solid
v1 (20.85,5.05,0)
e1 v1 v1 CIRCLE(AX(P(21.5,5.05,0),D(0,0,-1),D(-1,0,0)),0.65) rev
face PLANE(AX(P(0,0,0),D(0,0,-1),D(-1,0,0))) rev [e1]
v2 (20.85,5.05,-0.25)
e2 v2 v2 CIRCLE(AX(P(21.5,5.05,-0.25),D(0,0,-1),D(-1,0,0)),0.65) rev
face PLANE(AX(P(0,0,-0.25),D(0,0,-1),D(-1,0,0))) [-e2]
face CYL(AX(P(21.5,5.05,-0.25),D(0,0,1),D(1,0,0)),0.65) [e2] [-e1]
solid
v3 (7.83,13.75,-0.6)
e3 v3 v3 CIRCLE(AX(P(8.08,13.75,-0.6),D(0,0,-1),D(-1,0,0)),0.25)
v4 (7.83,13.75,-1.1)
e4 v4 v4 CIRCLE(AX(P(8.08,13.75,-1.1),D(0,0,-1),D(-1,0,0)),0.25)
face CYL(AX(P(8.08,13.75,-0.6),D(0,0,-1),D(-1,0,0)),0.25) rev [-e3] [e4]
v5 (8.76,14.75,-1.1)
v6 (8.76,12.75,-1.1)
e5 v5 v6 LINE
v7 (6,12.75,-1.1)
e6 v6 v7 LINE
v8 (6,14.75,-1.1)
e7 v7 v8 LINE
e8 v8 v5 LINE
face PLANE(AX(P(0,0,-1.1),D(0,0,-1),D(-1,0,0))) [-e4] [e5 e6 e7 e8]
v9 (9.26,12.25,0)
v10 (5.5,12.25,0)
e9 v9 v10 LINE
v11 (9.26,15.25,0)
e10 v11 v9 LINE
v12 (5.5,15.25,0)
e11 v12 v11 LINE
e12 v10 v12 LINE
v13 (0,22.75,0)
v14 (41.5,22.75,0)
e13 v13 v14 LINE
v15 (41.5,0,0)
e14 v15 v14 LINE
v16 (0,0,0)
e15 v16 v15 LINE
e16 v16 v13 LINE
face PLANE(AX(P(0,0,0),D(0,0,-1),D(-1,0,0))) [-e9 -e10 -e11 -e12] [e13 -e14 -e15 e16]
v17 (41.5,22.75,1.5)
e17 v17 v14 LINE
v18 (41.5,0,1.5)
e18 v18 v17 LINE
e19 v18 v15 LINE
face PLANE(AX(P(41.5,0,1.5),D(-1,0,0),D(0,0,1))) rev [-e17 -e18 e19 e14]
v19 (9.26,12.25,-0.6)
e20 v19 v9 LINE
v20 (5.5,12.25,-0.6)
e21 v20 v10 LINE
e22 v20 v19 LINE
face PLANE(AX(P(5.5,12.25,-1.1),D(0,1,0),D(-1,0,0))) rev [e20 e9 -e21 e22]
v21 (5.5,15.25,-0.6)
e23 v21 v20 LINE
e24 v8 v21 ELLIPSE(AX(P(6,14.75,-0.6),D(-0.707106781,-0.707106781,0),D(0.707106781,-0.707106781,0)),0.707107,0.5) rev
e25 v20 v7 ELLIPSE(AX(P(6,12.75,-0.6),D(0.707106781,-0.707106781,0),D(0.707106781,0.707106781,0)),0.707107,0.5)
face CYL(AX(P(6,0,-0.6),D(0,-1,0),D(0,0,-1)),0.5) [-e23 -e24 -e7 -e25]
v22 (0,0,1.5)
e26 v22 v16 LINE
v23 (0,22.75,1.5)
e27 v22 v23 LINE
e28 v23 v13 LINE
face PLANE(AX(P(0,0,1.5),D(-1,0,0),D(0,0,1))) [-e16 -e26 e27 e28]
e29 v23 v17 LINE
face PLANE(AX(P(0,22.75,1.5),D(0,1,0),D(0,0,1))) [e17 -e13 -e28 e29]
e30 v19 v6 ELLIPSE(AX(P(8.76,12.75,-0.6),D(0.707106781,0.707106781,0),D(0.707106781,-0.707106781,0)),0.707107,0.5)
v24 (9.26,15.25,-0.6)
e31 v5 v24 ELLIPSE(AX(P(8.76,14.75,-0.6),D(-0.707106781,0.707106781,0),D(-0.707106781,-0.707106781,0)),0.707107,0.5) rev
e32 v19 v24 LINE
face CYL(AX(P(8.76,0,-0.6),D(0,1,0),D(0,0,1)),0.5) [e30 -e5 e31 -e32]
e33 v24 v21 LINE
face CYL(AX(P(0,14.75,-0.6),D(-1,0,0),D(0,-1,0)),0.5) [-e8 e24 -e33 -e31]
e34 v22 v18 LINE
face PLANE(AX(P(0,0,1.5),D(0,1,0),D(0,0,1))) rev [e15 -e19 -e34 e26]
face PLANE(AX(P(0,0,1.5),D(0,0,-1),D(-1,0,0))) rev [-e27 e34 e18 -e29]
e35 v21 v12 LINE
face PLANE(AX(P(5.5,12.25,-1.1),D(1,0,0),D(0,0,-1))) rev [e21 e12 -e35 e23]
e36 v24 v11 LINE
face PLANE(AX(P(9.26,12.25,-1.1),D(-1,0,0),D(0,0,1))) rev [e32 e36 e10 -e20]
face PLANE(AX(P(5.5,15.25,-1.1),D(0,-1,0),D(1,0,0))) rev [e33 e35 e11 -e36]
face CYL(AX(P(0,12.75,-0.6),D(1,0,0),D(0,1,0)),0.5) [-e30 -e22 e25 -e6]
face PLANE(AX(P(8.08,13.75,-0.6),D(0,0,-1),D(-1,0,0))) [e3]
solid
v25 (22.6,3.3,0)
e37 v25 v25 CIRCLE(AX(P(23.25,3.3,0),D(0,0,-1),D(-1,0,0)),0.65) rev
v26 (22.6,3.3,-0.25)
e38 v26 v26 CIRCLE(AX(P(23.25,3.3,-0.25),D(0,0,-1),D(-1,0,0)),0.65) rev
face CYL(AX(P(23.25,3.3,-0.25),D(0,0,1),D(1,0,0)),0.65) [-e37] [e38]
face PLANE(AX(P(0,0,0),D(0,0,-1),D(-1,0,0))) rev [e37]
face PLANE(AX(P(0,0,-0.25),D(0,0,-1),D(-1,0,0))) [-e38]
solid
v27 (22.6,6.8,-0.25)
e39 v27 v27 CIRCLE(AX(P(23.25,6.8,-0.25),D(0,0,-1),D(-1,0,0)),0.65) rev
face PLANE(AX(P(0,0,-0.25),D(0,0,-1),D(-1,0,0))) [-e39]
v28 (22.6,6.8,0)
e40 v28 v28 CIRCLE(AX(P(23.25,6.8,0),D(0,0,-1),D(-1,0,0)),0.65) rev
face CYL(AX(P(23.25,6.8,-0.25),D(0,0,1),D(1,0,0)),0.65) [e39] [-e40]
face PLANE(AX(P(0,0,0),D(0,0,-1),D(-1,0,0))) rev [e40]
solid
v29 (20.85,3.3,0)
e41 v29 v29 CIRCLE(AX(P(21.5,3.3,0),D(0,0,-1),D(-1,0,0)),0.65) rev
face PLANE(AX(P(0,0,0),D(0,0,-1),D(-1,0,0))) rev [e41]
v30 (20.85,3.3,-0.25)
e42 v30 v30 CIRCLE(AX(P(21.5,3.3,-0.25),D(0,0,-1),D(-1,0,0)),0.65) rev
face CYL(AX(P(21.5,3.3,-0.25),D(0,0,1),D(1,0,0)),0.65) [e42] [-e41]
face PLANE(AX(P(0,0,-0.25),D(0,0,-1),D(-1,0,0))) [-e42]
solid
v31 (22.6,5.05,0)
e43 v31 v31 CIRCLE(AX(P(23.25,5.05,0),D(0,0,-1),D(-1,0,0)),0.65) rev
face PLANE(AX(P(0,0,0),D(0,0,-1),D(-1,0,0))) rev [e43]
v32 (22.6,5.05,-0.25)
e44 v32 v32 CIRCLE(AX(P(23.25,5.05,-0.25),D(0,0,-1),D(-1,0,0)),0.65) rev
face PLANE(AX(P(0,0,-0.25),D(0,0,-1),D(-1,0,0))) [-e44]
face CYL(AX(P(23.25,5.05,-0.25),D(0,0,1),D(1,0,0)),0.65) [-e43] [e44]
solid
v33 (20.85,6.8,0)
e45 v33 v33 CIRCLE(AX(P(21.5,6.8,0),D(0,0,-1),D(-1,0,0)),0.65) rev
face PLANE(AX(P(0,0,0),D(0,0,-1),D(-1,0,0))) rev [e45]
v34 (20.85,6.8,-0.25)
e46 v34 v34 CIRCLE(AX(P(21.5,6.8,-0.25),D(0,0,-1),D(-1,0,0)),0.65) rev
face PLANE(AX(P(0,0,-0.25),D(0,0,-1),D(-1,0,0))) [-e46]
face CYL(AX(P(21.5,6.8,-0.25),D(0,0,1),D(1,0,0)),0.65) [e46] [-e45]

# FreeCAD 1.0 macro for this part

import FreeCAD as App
import Part
import Sketcher
Q = App.Units.Quantity


def edges_at(feature, points):
    """Names of the edges that pass closest to the given points."""
    edges = feature.Shape.Edges
    near = lambda p: min(range(len(edges)), key=lambda i: edges[i].distToShape(Part.Vertex(*p))[0])
    return sorted({f"Edge{near(p) + 1}" for p in points})


def add_polygon(sketch, points):
    """Adds a closed chain of lines whose ends are joined by coincident constraints."""
    first, n = sketch.GeometryCount, len(points)
    for a, b in zip(points, points[1:] + points[:1]):
        sketch.addGeometry(Part.LineSegment(App.Vector(*a, 0), App.Vector(*b, 0)), False)
    for i in range(n):
        sketch.addConstraint(Sketcher.Constraint("Coincident", first + i, 2, first + (i + 1) % n, 1))

doc = App.newDocument("Part")
body = doc.addObject("PartDesign::Body", "Body")

# Sketch on XY plane
sketch1 = body.newObject("Sketcher::SketchObject", "Sketch")
sketch1.AttachmentSupport = (doc.getObject("XY_Plane"), [""])
sketch1.MapMode = "FlatFace"
add_polygon(sketch1, [(0, 22.75), (0, 0), (41.5, 0), (41.5, 22.75)])  # lines 0-3
sketch1.addConstraint(Sketcher.Constraint("Vertical", 0))
sketch1.addConstraint(Sketcher.Constraint("Horizontal", 1))
sketch1.addConstraint(Sketcher.Constraint("Vertical", 2))
sketch1.addConstraint(Sketcher.Constraint("Horizontal", 3))
sketch1.addConstraint(Sketcher.Constraint("Coincident", 0, 2, -1, 1))
sketch1.addConstraint(Sketcher.Constraint("DistanceX", 1, 1, 1, 2, Q("41.5 mm")))
sketch1.addConstraint(Sketcher.Constraint("DistanceY", 0, 2, 0, 1, Q("22.75 mm")))
pad1 = body.newObject("PartDesign::Pad", "Pad")
pad1.Profile = sketch1
pad1.Length = 1.5

# Sketch on XY plane
sketch2 = body.newObject("Sketcher::SketchObject", "Sketch001")
sketch2.AttachmentSupport = (doc.getObject("XY_Plane"), [""])
sketch2.MapMode = "FlatFace"
add_polygon(sketch2, [(9.26, 15.25), (9.26, 12.25), (5.5, 12.25), (5.5, 15.25)])  # lines 0-3
sketch2.addConstraint(Sketcher.Constraint("Vertical", 0))
sketch2.addConstraint(Sketcher.Constraint("Horizontal", 1))
sketch2.addConstraint(Sketcher.Constraint("Vertical", 2))
sketch2.addConstraint(Sketcher.Constraint("Horizontal", 3))
sketch2.addConstraint(Sketcher.Constraint("DistanceY", 0, 2, 0, 1, Q("3 mm")))
sketch2.addConstraint(Sketcher.Constraint("DistanceX", 1, 2, 1, 1, Q("3.76 mm")))
sketch2.addConstraint(Sketcher.Constraint("DistanceX", -1, 1, 1, 2, Q("5.5 mm")))
sketch2.addConstraint(Sketcher.Constraint("DistanceY", -1, 1, 0, 2, Q("12.25 mm")))
pad2 = body.newObject("PartDesign::Pad", "Pad001")
pad2.Profile = sketch2
pad2.Length = 1.1
pad2.Reversed = True

# Sketch on XY plane
sketch3 = body.newObject("Sketcher::SketchObject", "Sketch002")
sketch3.AttachmentSupport = (doc.getObject("XY_Plane"), [""])
sketch3.MapMode = "FlatFace"
sketch3.AttachmentOffset = App.Placement(App.Vector(0, 0, -1.1), App.Rotation())
sketch3.addGeometry(Part.Circle(App.Vector(8.08, 13.75, 0), App.Vector(0, 0, 1), 0.25), False)
sketch3.addConstraint(Sketcher.Constraint("Diameter", 0, Q("0.5 mm")))
sketch3.addConstraint(Sketcher.Constraint("DistanceX", -1, 1, 0, 3, Q("8.08 mm")))
sketch3.addConstraint(Sketcher.Constraint("DistanceY", -1, 1, 0, 3, Q("13.75 mm")))
pocket1 = body.newObject("PartDesign::Pocket", "Pocket")
pocket1.Profile = sketch3
pocket1.Length = 0.5
pocket1.Reversed = True
doc.recompute()

fillet = body.newObject("PartDesign::Fillet", "Fillet")
fillet.Base = (pocket1, edges_at(pocket1, [
    (5.5, 13.75, -1.1),
    (7.38, 15.25, -1.1),
    (9.26, 13.75, -1.1),
    (7.38, 12.25, -1.1),
]))
fillet.Radius = 0.5
body2 = doc.addObject("PartDesign::Body", "Body001")

# Sketch on XY plane
sketch4 = body2.newObject("Sketcher::SketchObject", "Sketch003")
sketch4.AttachmentSupport = (doc.getObject("XY_Plane001"), [""])
sketch4.MapMode = "FlatFace"
sketch4.addGeometry(Part.Circle(App.Vector(23.25, 3.3, 0), App.Vector(0, 0, 1), 0.65), False)
sketch4.addConstraint(Sketcher.Constraint("Diameter", 0, Q("1.3 mm")))
sketch4.addConstraint(Sketcher.Constraint("DistanceY", -1, 1, 0, 3, Q("3.3 mm")))
sketch4.addConstraint(Sketcher.Constraint("DistanceX", -1, 1, 0, 3, Q("23.25 mm")))
pad3 = body2.newObject("PartDesign::Pad", "Pad002")
pad3.Profile = sketch4
pad3.Length = 0.25
pad3.Reversed = True
body3 = doc.addObject("PartDesign::Body", "Body002")

# Sketch on XY plane
sketch5 = body3.newObject("Sketcher::SketchObject", "Sketch004")
sketch5.AttachmentSupport = (doc.getObject("XY_Plane002"), [""])
sketch5.MapMode = "FlatFace"
sketch5.addGeometry(Part.Circle(App.Vector(23.25, 5.05, 0), App.Vector(0, 0, 1), 0.65), False)
sketch5.addConstraint(Sketcher.Constraint("Diameter", 0, Q("1.3 mm")))
sketch5.addConstraint(Sketcher.Constraint("DistanceX", -1, 1, 0, 3, Q("23.25 mm")))
sketch5.addConstraint(Sketcher.Constraint("DistanceY", -1, 1, 0, 3, Q("5.05 mm")))
pad4 = body3.newObject("PartDesign::Pad", "Pad003")
pad4.Profile = sketch5
pad4.Length = 0.25
pad4.Reversed = True
body4 = doc.addObject("PartDesign::Body", "Body003")

# Sketch on XY plane
sketch6 = body4.newObject("Sketcher::SketchObject", "Sketch005")
sketch6.AttachmentSupport = (doc.getObject("XY_Plane003"), [""])
sketch6.MapMode = "FlatFace"
sketch6.addGeometry(Part.Circle(App.Vector(23.25, 6.8, 0), App.Vector(0, 0, 1), 0.65), False)
sketch6.addConstraint(Sketcher.Constraint("Diameter", 0, Q("1.3 mm")))
sketch6.addConstraint(Sketcher.Constraint("DistanceY", -1, 1, 0, 3, Q("6.8 mm")))
sketch6.addConstraint(Sketcher.Constraint("DistanceX", -1, 1, 0, 3, Q("23.25 mm")))
pad5 = body4.newObject("PartDesign::Pad", "Pad004")
pad5.Profile = sketch6
pad5.Length = 0.25
pad5.Reversed = True
body5 = doc.addObject("PartDesign::Body", "Body004")

# Sketch on XY plane
sketch7 = body5.newObject("Sketcher::SketchObject", "Sketch006")
sketch7.AttachmentSupport = (doc.getObject("XY_Plane004"), [""])
sketch7.MapMode = "FlatFace"
sketch7.addGeometry(Part.Circle(App.Vector(21.5, 3.3, 0), App.Vector(0, 0, 1), 0.65), False)
sketch7.addConstraint(Sketcher.Constraint("Diameter", 0, Q("1.3 mm")))
sketch7.addConstraint(Sketcher.Constraint("DistanceX", -1, 1, 0, 3, Q("21.5 mm")))
sketch7.addConstraint(Sketcher.Constraint("DistanceY", -1, 1, 0, 3, Q("3.3 mm")))
pad6 = body5.newObject("PartDesign::Pad", "Pad005")
pad6.Profile = sketch7
pad6.Length = 0.25
pad6.Reversed = True
body6 = doc.addObject("PartDesign::Body", "Body005")

# Sketch on XY plane
sketch8 = body6.newObject("Sketcher::SketchObject", "Sketch007")
sketch8.AttachmentSupport = (doc.getObject("XY_Plane005"), [""])
sketch8.MapMode = "FlatFace"
sketch8.addGeometry(Part.Circle(App.Vector(21.5, 5.05, 0), App.Vector(0, 0, 1), 0.65), False)
sketch8.addConstraint(Sketcher.Constraint("Diameter", 0, Q("1.3 mm")))
sketch8.addConstraint(Sketcher.Constraint("DistanceX", -1, 1, 0, 3, Q("21.5 mm")))
sketch8.addConstraint(Sketcher.Constraint("DistanceY", -1, 1, 0, 3, Q("5.05 mm")))
pad7 = body6.newObject("PartDesign::Pad", "Pad006")
pad7.Profile = sketch8
pad7.Length = 0.25
pad7.Reversed = True
body7 = doc.addObject("PartDesign::Body", "Body006")

# Sketch on XY plane
sketch9 = body7.newObject("Sketcher::SketchObject", "Sketch008")
sketch9.AttachmentSupport = (doc.getObject("XY_Plane006"), [""])
sketch9.MapMode = "FlatFace"
sketch9.addGeometry(Part.Circle(App.Vector(21.5, 6.8, 0), App.Vector(0, 0, 1), 0.65), False)
sketch9.addConstraint(Sketcher.Constraint("Diameter", 0, Q("1.3 mm")))
sketch9.addConstraint(Sketcher.Constraint("DistanceX", -1, 1, 0, 3, Q("21.5 mm")))
sketch9.addConstraint(Sketcher.Constraint("DistanceY", -1, 1, 0, 3, Q("6.8 mm")))
pad8 = body7.newObject("PartDesign::Pad", "Pad007")
pad8.Profile = sketch9
pad8.Length = 0.25
pad8.Reversed = True

doc.recompute()
